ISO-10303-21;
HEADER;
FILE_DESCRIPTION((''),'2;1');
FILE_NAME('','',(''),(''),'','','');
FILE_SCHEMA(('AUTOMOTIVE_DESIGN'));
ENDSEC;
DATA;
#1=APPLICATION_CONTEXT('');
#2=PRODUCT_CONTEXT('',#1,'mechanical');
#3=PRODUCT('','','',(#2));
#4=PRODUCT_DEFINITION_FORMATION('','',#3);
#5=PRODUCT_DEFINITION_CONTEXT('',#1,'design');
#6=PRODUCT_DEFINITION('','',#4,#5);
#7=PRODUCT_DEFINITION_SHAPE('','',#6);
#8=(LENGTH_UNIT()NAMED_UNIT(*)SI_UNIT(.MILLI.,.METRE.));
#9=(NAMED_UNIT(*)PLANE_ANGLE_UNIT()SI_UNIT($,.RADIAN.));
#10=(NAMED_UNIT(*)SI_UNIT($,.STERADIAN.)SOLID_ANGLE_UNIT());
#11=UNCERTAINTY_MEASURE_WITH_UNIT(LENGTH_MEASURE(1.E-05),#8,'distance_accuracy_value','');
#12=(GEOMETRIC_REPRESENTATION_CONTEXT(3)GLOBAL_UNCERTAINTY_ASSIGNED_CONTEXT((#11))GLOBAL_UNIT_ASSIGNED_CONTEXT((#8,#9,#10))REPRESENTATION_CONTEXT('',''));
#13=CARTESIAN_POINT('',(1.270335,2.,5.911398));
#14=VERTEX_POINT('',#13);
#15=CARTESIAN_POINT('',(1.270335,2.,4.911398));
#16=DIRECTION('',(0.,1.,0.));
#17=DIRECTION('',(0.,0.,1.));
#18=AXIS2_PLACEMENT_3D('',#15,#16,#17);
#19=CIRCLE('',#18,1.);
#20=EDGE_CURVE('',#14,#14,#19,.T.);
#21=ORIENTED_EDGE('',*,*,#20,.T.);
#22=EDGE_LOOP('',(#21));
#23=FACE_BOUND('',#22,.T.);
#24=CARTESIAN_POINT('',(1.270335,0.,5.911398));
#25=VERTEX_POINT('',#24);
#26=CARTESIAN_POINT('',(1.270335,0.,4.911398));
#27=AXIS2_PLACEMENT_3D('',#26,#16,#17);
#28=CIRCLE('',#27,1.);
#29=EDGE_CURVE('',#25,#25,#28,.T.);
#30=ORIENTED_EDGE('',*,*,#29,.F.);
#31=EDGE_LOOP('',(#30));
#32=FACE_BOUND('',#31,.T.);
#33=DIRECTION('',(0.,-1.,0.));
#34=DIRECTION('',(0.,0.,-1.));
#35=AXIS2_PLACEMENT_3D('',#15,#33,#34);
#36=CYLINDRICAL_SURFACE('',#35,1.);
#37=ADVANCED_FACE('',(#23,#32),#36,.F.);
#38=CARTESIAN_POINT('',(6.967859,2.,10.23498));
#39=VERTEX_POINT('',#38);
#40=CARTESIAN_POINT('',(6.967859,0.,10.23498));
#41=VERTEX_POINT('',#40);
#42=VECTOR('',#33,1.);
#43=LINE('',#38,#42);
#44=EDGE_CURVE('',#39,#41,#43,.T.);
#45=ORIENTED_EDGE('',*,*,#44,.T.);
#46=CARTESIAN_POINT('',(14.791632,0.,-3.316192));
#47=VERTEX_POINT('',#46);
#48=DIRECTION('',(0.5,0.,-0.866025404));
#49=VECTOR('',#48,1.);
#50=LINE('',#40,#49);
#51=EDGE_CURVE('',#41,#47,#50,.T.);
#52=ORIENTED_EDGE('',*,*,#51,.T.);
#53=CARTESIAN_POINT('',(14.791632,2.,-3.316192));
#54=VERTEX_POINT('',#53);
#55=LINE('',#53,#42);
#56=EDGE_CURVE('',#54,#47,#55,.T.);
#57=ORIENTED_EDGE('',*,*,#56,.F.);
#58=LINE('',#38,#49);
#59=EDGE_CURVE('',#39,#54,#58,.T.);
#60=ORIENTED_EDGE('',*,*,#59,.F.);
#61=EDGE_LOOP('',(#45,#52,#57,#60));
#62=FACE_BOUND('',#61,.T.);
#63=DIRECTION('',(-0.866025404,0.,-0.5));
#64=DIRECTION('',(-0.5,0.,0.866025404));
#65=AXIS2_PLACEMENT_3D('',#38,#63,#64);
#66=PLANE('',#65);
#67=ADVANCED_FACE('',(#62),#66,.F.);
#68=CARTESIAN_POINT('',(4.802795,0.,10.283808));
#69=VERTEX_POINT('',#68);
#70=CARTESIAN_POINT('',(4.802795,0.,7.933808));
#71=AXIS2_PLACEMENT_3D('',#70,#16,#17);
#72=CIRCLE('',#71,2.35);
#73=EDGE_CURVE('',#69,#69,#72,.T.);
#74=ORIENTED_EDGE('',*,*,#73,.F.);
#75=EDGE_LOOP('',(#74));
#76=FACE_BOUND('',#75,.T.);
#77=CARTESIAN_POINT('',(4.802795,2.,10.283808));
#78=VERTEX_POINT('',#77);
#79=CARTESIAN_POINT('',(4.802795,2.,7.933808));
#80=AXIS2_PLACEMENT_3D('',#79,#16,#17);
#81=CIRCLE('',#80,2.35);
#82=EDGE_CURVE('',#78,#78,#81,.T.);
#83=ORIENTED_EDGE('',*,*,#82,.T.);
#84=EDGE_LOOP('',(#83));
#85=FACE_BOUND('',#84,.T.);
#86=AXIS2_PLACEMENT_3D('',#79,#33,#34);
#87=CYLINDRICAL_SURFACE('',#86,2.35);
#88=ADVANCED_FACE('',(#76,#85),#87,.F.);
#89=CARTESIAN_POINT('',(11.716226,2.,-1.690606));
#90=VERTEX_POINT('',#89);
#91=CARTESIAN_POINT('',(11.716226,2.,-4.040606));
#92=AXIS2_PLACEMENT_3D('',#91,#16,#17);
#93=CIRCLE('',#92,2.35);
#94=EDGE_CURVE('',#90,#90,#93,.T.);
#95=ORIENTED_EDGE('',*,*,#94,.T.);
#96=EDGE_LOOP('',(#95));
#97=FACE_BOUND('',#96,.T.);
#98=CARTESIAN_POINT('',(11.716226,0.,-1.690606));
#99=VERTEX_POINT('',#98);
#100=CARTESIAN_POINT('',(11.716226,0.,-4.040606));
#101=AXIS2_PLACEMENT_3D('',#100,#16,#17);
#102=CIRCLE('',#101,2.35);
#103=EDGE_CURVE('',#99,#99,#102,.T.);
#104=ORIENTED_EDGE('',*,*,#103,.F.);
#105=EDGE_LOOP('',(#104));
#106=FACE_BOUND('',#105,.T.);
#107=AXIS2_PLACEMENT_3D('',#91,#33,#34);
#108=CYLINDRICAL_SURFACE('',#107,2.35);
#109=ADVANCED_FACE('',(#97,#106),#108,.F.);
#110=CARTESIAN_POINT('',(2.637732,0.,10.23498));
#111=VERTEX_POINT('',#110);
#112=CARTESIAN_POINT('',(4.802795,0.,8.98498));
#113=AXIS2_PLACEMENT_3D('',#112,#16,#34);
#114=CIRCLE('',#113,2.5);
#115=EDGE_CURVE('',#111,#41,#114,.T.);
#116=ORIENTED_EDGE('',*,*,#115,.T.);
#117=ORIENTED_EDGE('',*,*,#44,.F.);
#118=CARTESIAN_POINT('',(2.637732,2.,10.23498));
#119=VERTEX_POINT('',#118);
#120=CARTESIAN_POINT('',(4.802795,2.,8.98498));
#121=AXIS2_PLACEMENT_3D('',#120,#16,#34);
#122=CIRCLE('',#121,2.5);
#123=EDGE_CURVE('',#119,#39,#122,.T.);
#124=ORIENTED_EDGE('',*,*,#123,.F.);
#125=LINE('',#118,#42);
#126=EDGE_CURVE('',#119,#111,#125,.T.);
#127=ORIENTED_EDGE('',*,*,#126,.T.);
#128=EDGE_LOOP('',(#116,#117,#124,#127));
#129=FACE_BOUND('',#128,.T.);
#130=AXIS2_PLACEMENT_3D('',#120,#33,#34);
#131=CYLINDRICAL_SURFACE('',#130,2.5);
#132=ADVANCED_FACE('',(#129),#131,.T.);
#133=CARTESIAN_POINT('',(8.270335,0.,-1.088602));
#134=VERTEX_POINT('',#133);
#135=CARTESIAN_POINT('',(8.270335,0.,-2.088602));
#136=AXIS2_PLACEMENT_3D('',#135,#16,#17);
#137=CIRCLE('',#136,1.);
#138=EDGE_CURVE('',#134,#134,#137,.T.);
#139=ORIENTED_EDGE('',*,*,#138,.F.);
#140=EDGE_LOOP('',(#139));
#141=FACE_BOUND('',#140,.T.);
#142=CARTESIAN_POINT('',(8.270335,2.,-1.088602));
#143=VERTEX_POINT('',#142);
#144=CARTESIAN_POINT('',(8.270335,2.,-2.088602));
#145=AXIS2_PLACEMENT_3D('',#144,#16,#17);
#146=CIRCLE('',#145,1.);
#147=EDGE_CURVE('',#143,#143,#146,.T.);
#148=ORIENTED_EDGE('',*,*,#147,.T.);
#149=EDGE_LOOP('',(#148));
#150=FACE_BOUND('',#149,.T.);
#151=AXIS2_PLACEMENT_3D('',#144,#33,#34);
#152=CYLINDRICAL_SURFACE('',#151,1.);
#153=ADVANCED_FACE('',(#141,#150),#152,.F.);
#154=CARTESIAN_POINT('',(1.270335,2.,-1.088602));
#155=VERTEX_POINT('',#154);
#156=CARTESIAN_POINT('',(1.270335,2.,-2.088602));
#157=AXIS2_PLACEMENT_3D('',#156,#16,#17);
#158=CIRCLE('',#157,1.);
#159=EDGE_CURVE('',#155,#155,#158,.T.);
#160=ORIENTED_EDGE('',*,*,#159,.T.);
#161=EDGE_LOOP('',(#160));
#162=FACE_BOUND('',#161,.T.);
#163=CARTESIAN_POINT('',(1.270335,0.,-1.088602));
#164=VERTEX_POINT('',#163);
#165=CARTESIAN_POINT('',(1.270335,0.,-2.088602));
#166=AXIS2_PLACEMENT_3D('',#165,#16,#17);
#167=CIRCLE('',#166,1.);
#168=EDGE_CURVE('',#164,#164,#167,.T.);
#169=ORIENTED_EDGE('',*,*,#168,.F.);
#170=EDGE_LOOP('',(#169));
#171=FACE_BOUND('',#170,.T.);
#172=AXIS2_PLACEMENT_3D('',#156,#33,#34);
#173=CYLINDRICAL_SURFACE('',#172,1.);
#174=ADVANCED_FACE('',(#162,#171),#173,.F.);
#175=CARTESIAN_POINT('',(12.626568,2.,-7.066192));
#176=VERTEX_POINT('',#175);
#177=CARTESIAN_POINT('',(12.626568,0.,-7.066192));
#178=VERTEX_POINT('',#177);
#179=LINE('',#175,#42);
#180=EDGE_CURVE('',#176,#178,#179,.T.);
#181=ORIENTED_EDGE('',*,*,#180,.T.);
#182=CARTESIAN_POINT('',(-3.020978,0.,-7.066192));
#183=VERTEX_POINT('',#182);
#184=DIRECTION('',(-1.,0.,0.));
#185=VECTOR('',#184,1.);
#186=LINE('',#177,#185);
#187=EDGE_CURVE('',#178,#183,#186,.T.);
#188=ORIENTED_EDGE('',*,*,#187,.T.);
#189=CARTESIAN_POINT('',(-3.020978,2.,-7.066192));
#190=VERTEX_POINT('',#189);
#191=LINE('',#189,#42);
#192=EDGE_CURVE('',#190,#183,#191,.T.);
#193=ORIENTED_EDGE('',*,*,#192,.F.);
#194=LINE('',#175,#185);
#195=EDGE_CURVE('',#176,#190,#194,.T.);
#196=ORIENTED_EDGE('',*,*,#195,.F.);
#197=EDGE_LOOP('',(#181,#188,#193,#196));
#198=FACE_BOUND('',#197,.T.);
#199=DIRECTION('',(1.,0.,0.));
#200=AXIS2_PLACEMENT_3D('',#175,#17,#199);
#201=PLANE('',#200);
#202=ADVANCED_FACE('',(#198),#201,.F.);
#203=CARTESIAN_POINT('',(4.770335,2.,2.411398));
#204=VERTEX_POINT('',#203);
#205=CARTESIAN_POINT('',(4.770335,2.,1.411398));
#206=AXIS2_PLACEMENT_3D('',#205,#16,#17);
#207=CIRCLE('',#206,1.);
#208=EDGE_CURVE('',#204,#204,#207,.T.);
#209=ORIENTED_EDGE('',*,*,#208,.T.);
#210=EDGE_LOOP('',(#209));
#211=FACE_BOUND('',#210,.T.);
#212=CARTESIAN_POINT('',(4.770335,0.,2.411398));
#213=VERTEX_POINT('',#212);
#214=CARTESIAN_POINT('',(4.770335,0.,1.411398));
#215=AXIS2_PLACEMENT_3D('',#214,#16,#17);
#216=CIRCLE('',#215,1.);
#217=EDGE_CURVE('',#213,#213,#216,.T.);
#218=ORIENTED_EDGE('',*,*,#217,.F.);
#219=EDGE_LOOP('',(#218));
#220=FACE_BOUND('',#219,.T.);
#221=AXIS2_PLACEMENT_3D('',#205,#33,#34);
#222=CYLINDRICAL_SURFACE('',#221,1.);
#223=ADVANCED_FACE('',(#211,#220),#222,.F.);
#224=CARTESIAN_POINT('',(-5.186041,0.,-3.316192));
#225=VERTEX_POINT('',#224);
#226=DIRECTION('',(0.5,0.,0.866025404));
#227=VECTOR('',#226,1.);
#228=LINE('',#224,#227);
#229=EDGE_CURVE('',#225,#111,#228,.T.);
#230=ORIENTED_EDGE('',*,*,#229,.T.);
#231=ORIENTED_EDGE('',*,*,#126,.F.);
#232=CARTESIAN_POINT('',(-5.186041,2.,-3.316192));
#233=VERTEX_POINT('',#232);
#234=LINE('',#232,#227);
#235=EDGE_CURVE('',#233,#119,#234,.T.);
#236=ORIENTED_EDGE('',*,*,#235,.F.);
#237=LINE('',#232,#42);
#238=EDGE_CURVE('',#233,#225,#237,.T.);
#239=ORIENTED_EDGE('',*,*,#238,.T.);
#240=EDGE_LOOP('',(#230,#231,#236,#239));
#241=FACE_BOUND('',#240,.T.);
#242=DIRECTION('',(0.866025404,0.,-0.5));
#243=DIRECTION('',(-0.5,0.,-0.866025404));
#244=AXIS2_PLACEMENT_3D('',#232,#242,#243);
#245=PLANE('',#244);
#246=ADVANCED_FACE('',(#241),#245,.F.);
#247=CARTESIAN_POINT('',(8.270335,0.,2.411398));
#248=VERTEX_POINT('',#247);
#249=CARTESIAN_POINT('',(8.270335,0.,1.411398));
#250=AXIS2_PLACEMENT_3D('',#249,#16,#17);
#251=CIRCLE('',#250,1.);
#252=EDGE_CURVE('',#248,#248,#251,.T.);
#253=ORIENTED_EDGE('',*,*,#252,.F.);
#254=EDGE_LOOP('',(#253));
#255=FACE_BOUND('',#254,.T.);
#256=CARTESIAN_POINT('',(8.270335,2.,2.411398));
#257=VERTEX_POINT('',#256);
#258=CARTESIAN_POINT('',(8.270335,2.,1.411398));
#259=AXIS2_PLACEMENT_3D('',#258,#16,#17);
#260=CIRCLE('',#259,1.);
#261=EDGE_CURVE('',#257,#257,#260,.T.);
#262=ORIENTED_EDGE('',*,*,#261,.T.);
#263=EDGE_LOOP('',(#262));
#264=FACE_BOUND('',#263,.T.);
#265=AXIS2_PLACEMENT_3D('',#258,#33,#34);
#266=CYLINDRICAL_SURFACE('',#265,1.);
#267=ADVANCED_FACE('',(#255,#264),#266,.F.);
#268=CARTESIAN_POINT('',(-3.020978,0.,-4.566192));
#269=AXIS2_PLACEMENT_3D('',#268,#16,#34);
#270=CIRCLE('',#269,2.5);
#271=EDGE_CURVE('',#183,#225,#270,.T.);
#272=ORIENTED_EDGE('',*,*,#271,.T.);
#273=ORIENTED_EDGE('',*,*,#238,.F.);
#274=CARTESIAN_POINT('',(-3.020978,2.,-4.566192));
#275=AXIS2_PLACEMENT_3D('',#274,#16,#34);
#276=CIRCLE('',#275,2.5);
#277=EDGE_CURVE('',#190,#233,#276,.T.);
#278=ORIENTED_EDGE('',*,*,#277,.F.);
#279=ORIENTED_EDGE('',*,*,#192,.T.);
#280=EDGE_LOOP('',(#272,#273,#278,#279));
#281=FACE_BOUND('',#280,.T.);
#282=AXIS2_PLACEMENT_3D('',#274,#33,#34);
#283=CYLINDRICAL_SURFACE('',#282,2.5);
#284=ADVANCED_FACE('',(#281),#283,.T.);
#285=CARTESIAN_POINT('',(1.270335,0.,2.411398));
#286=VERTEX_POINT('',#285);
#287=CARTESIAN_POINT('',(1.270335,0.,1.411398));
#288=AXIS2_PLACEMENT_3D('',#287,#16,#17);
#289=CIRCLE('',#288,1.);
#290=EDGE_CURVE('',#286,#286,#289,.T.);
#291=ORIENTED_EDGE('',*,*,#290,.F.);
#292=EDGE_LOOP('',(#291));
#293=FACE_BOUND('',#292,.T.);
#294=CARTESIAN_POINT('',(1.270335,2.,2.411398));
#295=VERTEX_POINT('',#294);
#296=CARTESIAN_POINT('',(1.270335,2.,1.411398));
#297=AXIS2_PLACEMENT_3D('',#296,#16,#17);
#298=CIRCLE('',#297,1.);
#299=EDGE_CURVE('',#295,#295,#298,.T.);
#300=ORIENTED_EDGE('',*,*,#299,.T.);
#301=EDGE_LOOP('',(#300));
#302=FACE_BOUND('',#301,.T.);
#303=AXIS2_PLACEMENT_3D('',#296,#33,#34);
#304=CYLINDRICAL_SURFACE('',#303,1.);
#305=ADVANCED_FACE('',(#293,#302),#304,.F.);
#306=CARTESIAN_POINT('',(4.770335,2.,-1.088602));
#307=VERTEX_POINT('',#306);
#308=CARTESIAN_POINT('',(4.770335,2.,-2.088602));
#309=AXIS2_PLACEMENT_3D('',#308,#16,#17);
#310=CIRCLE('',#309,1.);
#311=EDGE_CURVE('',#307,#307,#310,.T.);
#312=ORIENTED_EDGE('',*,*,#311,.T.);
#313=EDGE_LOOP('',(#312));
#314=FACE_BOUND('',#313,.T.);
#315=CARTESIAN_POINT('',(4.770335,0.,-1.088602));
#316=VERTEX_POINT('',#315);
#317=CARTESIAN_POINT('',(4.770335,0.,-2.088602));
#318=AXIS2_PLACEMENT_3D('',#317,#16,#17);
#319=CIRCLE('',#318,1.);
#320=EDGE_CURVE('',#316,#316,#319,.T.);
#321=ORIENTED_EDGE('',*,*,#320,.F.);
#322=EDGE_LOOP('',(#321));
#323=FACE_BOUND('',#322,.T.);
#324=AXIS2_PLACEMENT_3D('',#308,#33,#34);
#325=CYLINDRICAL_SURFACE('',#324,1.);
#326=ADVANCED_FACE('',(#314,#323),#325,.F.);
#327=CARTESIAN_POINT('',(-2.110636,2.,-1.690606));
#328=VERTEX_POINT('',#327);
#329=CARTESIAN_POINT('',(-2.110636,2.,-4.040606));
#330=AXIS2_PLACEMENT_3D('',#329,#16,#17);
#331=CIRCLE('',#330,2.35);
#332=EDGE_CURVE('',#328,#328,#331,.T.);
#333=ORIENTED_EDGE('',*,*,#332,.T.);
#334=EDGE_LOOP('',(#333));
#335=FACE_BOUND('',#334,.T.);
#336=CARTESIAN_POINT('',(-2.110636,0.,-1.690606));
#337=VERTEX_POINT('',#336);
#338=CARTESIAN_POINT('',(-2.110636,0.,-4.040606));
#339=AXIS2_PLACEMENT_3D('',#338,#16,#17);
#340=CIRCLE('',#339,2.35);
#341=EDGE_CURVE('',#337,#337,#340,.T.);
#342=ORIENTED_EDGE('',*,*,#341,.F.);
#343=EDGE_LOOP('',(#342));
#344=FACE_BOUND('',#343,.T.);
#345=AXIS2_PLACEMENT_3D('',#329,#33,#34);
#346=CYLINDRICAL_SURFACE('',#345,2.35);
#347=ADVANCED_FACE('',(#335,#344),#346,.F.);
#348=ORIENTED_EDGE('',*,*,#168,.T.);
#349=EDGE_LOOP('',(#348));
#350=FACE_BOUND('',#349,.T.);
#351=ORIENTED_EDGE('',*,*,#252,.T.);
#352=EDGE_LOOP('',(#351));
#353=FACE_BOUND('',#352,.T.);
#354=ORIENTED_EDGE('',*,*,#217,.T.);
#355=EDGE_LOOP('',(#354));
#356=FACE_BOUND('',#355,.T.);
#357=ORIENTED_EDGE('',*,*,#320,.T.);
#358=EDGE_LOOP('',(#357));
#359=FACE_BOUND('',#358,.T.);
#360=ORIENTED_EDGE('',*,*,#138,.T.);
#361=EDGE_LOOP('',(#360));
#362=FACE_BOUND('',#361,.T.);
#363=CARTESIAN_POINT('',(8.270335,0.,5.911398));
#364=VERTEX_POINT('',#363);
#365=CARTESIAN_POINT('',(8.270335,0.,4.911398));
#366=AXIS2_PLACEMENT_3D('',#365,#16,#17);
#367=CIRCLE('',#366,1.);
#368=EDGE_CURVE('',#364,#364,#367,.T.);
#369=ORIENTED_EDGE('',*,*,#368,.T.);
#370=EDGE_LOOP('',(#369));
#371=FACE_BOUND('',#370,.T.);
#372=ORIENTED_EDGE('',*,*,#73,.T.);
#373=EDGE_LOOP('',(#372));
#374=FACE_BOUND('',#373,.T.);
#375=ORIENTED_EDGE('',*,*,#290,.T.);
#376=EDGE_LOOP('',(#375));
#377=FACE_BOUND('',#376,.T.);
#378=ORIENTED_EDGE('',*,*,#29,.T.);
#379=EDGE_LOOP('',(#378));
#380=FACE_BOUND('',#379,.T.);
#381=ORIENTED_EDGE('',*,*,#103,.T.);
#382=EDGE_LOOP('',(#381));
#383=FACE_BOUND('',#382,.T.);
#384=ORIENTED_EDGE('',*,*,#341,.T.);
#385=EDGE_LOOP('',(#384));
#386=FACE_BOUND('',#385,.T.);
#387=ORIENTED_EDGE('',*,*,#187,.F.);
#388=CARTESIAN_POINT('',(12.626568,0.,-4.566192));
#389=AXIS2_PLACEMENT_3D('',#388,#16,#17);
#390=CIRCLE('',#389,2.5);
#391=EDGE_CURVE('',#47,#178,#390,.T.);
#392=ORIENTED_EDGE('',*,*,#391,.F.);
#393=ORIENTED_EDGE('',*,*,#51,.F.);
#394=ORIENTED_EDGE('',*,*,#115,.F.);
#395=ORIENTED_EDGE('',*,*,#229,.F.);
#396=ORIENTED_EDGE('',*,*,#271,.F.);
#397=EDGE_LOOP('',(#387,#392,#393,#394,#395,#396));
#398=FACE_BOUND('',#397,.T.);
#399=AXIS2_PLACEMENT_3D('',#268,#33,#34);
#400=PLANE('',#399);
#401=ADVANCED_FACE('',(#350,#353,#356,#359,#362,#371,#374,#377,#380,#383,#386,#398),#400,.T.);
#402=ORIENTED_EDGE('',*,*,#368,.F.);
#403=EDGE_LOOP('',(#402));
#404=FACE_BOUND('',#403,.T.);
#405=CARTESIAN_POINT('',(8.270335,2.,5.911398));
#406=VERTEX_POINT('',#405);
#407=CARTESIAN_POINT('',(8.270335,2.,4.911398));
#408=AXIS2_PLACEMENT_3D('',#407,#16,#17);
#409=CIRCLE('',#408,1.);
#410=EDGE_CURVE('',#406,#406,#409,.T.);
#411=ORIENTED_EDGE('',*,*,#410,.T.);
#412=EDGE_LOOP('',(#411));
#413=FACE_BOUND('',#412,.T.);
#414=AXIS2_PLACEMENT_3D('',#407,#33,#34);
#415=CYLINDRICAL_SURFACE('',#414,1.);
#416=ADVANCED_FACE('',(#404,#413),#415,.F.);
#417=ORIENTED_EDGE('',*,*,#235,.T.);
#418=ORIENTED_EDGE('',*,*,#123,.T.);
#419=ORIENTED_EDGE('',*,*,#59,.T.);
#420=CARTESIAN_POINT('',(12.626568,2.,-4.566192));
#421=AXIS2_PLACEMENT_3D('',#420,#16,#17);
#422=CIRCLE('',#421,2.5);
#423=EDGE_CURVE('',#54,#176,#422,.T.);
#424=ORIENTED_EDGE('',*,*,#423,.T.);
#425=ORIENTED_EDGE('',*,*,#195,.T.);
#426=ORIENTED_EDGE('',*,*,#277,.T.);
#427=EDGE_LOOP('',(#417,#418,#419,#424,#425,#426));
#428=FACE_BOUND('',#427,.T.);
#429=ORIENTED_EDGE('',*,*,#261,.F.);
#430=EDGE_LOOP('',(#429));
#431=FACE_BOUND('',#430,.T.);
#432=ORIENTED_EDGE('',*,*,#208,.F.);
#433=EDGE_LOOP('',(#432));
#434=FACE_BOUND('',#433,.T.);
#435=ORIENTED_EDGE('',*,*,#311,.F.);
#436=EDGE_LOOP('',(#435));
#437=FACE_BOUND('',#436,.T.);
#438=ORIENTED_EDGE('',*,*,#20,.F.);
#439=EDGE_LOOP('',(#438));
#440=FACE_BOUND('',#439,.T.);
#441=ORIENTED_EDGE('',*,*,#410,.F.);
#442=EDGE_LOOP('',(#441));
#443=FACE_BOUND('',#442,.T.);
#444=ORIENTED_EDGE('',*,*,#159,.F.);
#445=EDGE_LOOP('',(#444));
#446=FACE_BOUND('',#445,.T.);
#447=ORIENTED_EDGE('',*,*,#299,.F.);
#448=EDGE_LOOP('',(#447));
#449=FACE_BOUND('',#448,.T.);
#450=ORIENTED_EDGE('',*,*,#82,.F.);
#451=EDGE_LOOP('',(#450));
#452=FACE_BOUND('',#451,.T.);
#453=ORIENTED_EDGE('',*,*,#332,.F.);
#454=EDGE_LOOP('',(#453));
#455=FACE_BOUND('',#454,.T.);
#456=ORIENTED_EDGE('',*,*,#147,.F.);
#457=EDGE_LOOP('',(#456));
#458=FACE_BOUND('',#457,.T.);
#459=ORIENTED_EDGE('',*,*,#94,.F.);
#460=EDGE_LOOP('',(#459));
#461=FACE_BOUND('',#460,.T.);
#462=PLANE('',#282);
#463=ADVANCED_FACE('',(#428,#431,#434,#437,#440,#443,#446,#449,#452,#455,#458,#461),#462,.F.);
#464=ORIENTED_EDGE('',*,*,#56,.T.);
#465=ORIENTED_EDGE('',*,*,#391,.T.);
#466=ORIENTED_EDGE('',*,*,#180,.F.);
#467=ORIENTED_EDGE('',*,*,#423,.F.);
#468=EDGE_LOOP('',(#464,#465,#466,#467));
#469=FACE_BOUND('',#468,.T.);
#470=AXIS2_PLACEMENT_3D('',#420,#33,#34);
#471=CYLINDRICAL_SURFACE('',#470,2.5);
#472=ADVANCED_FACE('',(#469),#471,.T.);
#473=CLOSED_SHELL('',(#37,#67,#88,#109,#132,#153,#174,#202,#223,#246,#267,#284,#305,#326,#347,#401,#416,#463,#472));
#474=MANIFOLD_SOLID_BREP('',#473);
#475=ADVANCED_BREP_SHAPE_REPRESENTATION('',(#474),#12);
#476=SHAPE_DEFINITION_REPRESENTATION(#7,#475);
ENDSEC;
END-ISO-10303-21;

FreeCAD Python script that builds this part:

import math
import FreeCAD as App
import Part
import Sketcher
from FreeCAD import Vector
Q = App.Units.Quantity

doc = App.newDocument("Part")
body = doc.addObject("PartDesign::Body", "Body")

# Sketch on XZ plane
sketch1 = body.newObject("Sketcher::SketchObject", "Sketch")
sketch1.AttachmentSupport = (doc.getObject("XZ_Plane"), [""])
sketch1.MapMode = "FlatFace"
sketch1.addGeometry([
    Part.LineSegment(Vector(-5.2, -3.3, 0), Vector(2.6, 10.2, 0)),  # 0
    Part.ArcOfCircle(Part.Circle(Vector(4.8, 9, 0), Vector(0, 0, 1), 2.5), math.radians(30), math.radians(150)),  # 1
    Part.LineSegment(Vector(7, 10.2, 0), Vector(14.8, -3.3, 0)),  # 2
    Part.ArcOfCircle(Part.Circle(Vector(12.6, -4.6, 0), Vector(0, 0, 1), 2.5), math.radians(-90), math.radians(30)),  # 3
    Part.LineSegment(Vector(12.6, -7.1, 0), Vector(-3, -7.1, 0)),  # 4
    Part.ArcOfCircle(Part.Circle(Vector(-3, -4.6, 0), Vector(0, 0, 1), 2.5), math.radians(150), math.radians(270)),  # 5
    Part.Circle(Vector(4.8, 7.9, 0), Vector(0, 0, 1), 2.4),  # 6
    Part.Circle(Vector(1.3, 4.9, 0), Vector(0, 0, 1), 1),  # 7
    Part.Circle(Vector(8.3, 4.9, 0), Vector(0, 0, 1), 1),  # 8
    Part.Circle(Vector(1.3, 1.4, 0), Vector(0, 0, 1), 1),  # 9
    Part.Circle(Vector(4.8, 1.4, 0), Vector(0, 0, 1), 1),  # 10
    Part.Circle(Vector(1.3, -2.1, 0), Vector(0, 0, 1), 1),  # 11
    Part.Circle(Vector(4.8, -2.1, 0), Vector(0, 0, 1), 1),  # 12
    Part.Circle(Vector(-2.1, -4, 0), Vector(0, 0, 1), 2.4),  # 13
    Part.Circle(Vector(8.3, 1.4, 0), Vector(0, 0, 1), 1),  # 14
    Part.Circle(Vector(8.3, -2.1, 0), Vector(0, 0, 1), 1),  # 15
    Part.Circle(Vector(11.7, -4, 0), Vector(0, 0, 1), 2.4),  # 16
], False)
sketch1.addConstraint([
    Sketcher.Constraint("Tangent", 0, 2, 1, 2),
    Sketcher.Constraint("Tangent", 1, 1, 2, 1),
    Sketcher.Constraint("Tangent", 2, 2, 3, 2),
    Sketcher.Constraint("Tangent", 3, 1, 4, 1),
    Sketcher.Constraint("Tangent", 4, 2, 5, 2),
    Sketcher.Constraint("Tangent", 5, 1, 0, 1),
    Sketcher.Constraint("Horizontal", 4),
    Sketcher.Constraint("Equal", 1, 3),
    Sketcher.Constraint("Equal", 3, 5),
    Sketcher.Constraint("Equal", 7, 8),
    Sketcher.Constraint("Equal", 8, 9),
    Sketcher.Constraint("Equal", 9, 10),
    Sketcher.Constraint("Equal", 10, 11),
    Sketcher.Constraint("Equal", 11, 12),
    Sketcher.Constraint("Equal", 6, 13),
    Sketcher.Constraint("Equal", 12, 14),
    Sketcher.Constraint("Equal", 14, 15),
    Sketcher.Constraint("Equal", 13, 16),
    Sketcher.Constraint("Horizontal", 7, 3, 8, 3),
    Sketcher.Constraint("Horizontal", 9, 3, 10, 3),
    Sketcher.Constraint("Horizontal", 11, 3, 12, 3),
    Sketcher.Constraint("Horizontal", 10, 3, 14, 3),
    Sketcher.Constraint("Horizontal", 12, 3, 15, 3),
    Sketcher.Constraint("Horizontal", 13, 3, 16, 3),
    Sketcher.Constraint("Horizontal", 0, 2, 1, 1),
    Sketcher.Constraint("Vertical", 1, 3, 6, 3),
    Sketcher.Constraint("Vertical", 7, 3, 9, 3),
    Sketcher.Constraint("Vertical", 9, 3, 11, 3),
    Sketcher.Constraint("Vertical", 10, 3, 12, 3),
    Sketcher.Constraint("Vertical", 8, 3, 14, 3),
    Sketcher.Constraint("Vertical", 14, 3, 15, 3),
    Sketcher.Constraint("Diameter", 7, 2.0),
    Sketcher.Constraint("Diameter", 6, 4.7),
    Sketcher.Constraint("Radius", 1, 2.5),
    Sketcher.Constraint("Angle", 0, Q("60 deg")),
    Sketcher.Constraint("DistanceX", 7, 3, 8, 3, 7.0),
    Sketcher.Constraint("DistanceY", 11, 3, 7, 3, 7.0),
    Sketcher.Constraint("DistanceY", 5, 3, 6, 3, 12.5),
    Sketcher.Constraint("DistanceY", 9, 3, 7, 3, 3.5),
    Sketcher.Constraint("DistanceX", 9, 3, 10, 3, 3.5),
    Sketcher.Constraint("DistanceX", 4, 2, 4, 1, 15.647546),
    Sketcher.Constraint("DistanceY", -1, 1, 1, 3, 8.98498),
    Sketcher.Constraint("DistanceX", -1, 1, 3, 3, 12.626568),
    Sketcher.Constraint("DistanceX", 7, 3, 6, 3, 3.532461),
    Sketcher.Constraint("DistanceY", 7, 3, 6, 3, 3.02241),
    Sketcher.Constraint("DistanceX", 5, 3, 13, 3, 0.910342),
    Sketcher.Constraint("DistanceX", 16, 3, 3, 3, 0.910342),
    Sketcher.Constraint("DistanceY", 13, 3, -1, 1, 4.040606),
])
pad1 = body.newObject("PartDesign::Pad", "Pad")
pad1.Profile = sketch1
pad1.Length = 2
pad1.Reversed = True

doc.recompute()
